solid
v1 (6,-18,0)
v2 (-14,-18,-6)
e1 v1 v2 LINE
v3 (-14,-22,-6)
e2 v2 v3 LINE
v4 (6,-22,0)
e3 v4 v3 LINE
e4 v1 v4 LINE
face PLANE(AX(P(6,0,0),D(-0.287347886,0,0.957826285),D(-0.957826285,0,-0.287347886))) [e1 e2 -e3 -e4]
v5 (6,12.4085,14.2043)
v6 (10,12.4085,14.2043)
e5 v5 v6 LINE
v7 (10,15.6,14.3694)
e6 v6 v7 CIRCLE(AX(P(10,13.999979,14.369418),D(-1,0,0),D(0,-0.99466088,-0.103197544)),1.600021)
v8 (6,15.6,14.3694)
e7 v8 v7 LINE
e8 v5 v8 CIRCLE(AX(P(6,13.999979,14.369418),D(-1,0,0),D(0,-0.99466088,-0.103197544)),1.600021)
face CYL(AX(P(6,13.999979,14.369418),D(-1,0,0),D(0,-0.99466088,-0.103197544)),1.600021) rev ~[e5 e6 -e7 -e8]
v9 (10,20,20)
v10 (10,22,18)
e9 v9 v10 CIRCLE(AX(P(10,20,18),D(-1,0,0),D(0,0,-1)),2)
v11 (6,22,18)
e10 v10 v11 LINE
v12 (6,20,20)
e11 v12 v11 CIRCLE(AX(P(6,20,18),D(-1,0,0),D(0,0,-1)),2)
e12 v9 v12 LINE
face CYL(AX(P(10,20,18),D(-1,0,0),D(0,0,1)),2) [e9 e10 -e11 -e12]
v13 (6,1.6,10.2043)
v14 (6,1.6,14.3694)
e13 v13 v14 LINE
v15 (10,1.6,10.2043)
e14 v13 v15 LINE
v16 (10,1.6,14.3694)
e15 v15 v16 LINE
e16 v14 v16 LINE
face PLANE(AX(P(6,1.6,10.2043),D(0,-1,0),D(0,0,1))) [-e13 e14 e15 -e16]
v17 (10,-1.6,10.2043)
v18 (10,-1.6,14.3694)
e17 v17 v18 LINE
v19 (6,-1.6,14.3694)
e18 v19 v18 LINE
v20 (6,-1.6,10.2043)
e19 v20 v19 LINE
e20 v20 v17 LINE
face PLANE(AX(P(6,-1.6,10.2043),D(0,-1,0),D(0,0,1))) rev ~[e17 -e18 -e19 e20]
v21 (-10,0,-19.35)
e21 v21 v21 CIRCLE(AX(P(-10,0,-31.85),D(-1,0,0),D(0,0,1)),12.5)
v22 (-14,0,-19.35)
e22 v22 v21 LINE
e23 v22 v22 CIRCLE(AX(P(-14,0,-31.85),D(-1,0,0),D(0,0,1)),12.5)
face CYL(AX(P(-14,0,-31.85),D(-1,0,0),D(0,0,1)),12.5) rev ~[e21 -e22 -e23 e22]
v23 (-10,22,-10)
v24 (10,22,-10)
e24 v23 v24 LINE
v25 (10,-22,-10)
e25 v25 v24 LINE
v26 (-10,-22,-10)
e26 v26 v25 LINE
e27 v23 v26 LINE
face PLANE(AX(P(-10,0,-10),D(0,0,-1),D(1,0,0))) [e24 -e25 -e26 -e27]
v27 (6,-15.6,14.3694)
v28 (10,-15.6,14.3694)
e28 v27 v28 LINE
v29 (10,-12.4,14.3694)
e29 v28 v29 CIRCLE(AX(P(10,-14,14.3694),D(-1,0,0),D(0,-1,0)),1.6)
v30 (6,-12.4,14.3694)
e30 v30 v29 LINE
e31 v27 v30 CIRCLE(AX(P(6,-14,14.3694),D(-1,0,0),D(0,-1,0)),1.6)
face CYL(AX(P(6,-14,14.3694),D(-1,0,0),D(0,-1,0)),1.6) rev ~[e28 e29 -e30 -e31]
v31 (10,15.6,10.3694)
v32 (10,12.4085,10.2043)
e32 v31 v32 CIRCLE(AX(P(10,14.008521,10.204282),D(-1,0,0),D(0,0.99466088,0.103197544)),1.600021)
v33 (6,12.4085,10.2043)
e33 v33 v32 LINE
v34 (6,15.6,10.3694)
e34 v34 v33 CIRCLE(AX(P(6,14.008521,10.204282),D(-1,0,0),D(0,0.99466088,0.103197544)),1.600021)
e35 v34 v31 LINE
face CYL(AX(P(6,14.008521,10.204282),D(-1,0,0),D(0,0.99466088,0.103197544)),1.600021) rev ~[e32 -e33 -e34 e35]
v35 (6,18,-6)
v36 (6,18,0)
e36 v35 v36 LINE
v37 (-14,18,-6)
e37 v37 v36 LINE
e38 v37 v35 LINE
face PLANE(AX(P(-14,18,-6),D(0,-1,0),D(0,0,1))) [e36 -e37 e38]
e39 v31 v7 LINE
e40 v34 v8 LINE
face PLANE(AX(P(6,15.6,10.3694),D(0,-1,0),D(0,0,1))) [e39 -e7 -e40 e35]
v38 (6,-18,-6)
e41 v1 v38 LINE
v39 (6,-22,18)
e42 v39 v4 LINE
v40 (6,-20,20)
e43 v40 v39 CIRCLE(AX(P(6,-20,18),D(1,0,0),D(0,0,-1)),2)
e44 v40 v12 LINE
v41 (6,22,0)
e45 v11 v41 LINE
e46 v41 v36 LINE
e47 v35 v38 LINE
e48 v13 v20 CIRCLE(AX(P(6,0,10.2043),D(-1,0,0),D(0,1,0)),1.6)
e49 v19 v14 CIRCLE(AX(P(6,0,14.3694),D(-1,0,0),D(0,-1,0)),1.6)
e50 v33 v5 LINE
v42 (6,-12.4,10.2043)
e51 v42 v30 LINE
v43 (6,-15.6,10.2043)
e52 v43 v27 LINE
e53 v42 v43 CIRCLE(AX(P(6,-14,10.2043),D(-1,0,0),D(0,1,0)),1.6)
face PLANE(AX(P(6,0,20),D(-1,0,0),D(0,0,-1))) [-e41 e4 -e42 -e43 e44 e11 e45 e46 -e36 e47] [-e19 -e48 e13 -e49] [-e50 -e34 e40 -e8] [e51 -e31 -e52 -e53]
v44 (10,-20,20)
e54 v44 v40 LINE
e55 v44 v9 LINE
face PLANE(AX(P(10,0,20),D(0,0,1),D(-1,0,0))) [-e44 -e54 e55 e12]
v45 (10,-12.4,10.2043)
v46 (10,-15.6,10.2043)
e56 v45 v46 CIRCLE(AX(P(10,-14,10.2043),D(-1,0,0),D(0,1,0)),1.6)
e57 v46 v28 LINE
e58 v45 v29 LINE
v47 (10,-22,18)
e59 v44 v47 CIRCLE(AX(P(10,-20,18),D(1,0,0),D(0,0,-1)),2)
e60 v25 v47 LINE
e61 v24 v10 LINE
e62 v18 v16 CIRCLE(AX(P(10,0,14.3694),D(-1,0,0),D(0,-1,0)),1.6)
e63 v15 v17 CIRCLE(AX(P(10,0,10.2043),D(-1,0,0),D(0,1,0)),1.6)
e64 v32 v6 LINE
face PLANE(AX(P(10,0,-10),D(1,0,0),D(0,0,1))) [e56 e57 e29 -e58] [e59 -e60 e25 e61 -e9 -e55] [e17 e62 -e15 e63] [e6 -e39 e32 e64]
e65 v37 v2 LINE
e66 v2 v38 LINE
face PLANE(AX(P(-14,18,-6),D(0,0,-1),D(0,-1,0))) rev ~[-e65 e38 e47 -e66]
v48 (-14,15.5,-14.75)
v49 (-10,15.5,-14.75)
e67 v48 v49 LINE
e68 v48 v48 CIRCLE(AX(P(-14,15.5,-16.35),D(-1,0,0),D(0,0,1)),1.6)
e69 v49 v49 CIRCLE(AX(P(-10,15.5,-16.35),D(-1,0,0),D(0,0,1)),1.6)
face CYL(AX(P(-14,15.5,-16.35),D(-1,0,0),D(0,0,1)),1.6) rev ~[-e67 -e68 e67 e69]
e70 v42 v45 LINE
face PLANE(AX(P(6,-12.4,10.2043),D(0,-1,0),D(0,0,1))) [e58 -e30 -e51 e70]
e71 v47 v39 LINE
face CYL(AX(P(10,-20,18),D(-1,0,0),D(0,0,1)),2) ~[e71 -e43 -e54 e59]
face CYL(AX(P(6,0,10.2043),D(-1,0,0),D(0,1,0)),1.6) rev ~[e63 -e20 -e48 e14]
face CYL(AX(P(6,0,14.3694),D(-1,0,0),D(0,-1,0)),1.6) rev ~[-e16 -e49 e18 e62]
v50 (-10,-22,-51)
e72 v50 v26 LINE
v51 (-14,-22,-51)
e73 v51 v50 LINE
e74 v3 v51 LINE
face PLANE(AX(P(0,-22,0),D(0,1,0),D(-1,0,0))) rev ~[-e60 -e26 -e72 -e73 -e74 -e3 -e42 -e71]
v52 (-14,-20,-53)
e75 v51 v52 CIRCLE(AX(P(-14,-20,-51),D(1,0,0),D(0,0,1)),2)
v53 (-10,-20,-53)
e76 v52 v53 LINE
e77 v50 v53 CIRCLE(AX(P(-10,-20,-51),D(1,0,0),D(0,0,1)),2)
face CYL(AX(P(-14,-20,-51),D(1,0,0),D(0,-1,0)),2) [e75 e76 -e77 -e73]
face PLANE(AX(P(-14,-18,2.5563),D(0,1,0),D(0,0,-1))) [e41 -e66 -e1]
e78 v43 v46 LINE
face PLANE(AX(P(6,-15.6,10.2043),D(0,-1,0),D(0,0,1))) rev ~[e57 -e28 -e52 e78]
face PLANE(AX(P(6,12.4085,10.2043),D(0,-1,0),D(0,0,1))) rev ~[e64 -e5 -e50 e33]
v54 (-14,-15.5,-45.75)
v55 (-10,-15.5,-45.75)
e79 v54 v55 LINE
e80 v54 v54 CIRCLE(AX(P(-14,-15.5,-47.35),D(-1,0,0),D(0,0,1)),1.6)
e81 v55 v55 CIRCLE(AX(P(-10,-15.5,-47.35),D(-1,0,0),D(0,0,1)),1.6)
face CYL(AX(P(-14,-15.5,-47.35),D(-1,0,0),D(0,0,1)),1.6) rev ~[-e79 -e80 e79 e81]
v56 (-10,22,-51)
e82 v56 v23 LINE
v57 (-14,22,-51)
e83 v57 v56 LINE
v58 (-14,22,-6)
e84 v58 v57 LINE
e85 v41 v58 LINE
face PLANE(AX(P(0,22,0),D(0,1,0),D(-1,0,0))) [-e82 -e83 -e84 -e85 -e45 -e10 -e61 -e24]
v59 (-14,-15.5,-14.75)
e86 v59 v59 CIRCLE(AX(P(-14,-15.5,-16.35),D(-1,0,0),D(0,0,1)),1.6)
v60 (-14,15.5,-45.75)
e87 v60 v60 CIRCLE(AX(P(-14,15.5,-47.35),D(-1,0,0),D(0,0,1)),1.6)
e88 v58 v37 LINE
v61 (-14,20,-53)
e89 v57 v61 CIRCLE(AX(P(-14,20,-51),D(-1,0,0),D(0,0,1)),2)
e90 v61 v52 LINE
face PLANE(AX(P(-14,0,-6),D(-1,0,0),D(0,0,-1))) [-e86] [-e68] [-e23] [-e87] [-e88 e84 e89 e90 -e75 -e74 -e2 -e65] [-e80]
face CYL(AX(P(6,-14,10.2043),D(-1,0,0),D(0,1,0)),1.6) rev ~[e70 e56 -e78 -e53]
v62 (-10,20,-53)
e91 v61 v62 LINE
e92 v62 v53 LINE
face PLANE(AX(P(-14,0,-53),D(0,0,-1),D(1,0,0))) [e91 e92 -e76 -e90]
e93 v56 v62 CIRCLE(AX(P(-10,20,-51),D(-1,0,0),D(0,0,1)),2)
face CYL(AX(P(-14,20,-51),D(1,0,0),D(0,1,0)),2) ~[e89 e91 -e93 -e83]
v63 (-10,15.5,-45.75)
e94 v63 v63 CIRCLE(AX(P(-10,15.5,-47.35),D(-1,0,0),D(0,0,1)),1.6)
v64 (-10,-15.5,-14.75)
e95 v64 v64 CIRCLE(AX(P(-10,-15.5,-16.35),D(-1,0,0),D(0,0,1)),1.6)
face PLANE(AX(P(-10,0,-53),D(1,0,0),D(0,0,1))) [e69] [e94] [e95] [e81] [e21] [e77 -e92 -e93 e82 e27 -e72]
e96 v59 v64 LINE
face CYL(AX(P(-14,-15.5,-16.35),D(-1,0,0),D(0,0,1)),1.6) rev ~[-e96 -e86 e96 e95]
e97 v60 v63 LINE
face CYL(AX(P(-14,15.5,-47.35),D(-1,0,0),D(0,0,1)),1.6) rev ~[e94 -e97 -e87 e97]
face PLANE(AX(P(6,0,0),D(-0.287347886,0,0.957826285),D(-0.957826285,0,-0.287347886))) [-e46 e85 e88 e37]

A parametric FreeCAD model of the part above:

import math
import FreeCAD as App
import Part
import Sketcher
Q = App.Units.Quantity


def edges_at(feature, points):
    """Names of the edges that pass closest to the given points."""
    edges = feature.Shape.Edges
    near = lambda p: min(range(len(edges)), key=lambda i: edges[i].distToShape(Part.Vertex(*p))[0])
    return sorted({f"Edge{near(p) + 1}" for p in points})

doc = App.newDocument("Part")
body = doc.addObject("PartDesign::Body", "Body")

# Sketch on XZ plane
sketch1 = doc.addObject("Sketcher::SketchObject", "Sketch")
body.addObject(sketch1)
sketch1.AttachmentSupport = (doc.XZ_Plane, [""])
sketch1.MapMode = "FlatFace"
sketch1.addGeometry(Part.LineSegment(App.Vector(6, 0, 0), App.Vector(6, 20, 0)), False)
sketch1.addGeometry(Part.LineSegment(App.Vector(6, 20, 0), App.Vector(10, 20, 0)), False)
sketch1.addGeometry(Part.LineSegment(App.Vector(10, 20, 0), App.Vector(10, -10, 0)), False)
sketch1.addGeometry(Part.LineSegment(App.Vector(10, -10, 0), App.Vector(-10, -10, 0)), False)
sketch1.addGeometry(Part.LineSegment(App.Vector(-10, -10, 0), App.Vector(-10, -53, 0)), False)
sketch1.addGeometry(Part.LineSegment(App.Vector(-10, -53, 0), App.Vector(-14, -53, 0)), False)
sketch1.addGeometry(Part.LineSegment(App.Vector(-14, -53, 0), App.Vector(-14, -6, 0)), False)
sketch1.addGeometry(Part.LineSegment(App.Vector(-14, -6, 0), App.Vector(6, 0, 0)), False)
sketch1.addConstraint(Sketcher.Constraint("Coincident", 0, 2, 1, 1))
sketch1.addConstraint(Sketcher.Constraint("Coincident", 1, 2, 2, 1))
sketch1.addConstraint(Sketcher.Constraint("Coincident", 2, 2, 3, 1))
sketch1.addConstraint(Sketcher.Constraint("Coincident", 3, 2, 4, 1))
sketch1.addConstraint(Sketcher.Constraint("Coincident", 4, 2, 5, 1))
sketch1.addConstraint(Sketcher.Constraint("Coincident", 5, 2, 6, 1))
sketch1.addConstraint(Sketcher.Constraint("Coincident", 6, 2, 7, 1))
sketch1.addConstraint(Sketcher.Constraint("Coincident", 7, 2, 0, 1))
sketch1.addConstraint(Sketcher.Constraint("Vertical", 0))
sketch1.addConstraint(Sketcher.Constraint("Horizontal", 1))
sketch1.addConstraint(Sketcher.Constraint("Vertical", 2))
sketch1.addConstraint(Sketcher.Constraint("Horizontal", 3))
sketch1.addConstraint(Sketcher.Constraint("Vertical", 4))
sketch1.addConstraint(Sketcher.Constraint("Horizontal", 5))
sketch1.addConstraint(Sketcher.Constraint("Vertical", 6))
sketch1.addConstraint(Sketcher.Constraint("PointOnObject", 7, 2, -1))
sketch1.addConstraint(Sketcher.Constraint("Equal", 1, 5))
sketch1.addConstraint(Sketcher.Constraint("Equal", 3, 0))
sketch1.addConstraint(Sketcher.Constraint("DistanceX", 1, 1, 1, 2, Q("4 mm")))
sketch1.addConstraint(Sketcher.Constraint("DistanceX", 3, 2, 3, 1, Q("20 mm")))
sketch1.addConstraint(Sketcher.Constraint("DistanceY", 2, 2, 2, 1, Q("30 mm")))
sketch1.addConstraint(Sketcher.Constraint("DistanceY", 4, 2, 4, 1, Q("43 mm")))
sketch1.addConstraint(Sketcher.Constraint("DistanceY", 3, 2, 6, 2, Q("4 mm")))
sketch1.addConstraint(Sketcher.Constraint("DistanceX", -1, 1, 0, 2, Q("6 mm")))
pad1 = doc.addObject("PartDesign::Pad", "Pad")
body.addObject(pad1)
pad1.Profile = sketch1
pad1.Length = 44
pad1.Midplane = True

# Sketch on YZ plane
sketch2 = doc.addObject("Sketcher::SketchObject", "Sketch001")
body.addObject(sketch2)
sketch2.AttachmentSupport = (doc.YZ_Plane, [""])
sketch2.MapMode = "FlatFace"
sketch2.AttachmentOffset = App.Placement(App.Vector(0, 0, -14), App.Rotation())
sketch2.addGeometry(Part.Circle(App.Vector(0, -31.9, 0), App.Vector(0, 0, 1), 12.5), False)
sketch2.addGeometry(Part.Circle(App.Vector(15.5, -47.4, 0), App.Vector(0, 0, 1), 1.6), False)
sketch2.addGeometry(Part.Circle(App.Vector(-15.5, -47.4, 0), App.Vector(0, 0, 1), 1.6), False)
sketch2.addGeometry(Part.Circle(App.Vector(15.5, -16.4, 0), App.Vector(0, 0, 1), 1.6), False)
sketch2.addGeometry(Part.Circle(App.Vector(-15.5, -16.4, 0), App.Vector(0, 0, 1), 1.6), False)
sketch2.addConstraint(Sketcher.Constraint("Equal", 1, 2))
sketch2.addConstraint(Sketcher.Constraint("Equal", 2, 3))
sketch2.addConstraint(Sketcher.Constraint("Equal", 3, 4))
sketch2.addConstraint(Sketcher.Constraint("Symmetric", 1, 3, 2, 3, -2))
sketch2.addConstraint(Sketcher.Constraint("Symmetric", 3, 3, 4, 3, -2))
sketch2.addConstraint(Sketcher.Constraint("PointOnObject", 0, 3, -2))
sketch2.addConstraint(Sketcher.Constraint("Vertical", 1, 3, 3, 3))
sketch2.addConstraint(Sketcher.Constraint("Diameter", 0, Q("25 mm")))
sketch2.addConstraint(Sketcher.Constraint("Diameter", 1, Q("3.2 mm")))
sketch2.addConstraint(Sketcher.Constraint("DistanceX", 2, 3, 1, 3, Q("31 mm")))
sketch2.addConstraint(Sketcher.Constraint("DistanceY", 1, 3, 3, 3, Q("31 mm")))
sketch2.addConstraint(Sketcher.Constraint("DistanceY", 1, 3, 0, 3, Q("15.5 mm")))
sketch2.addConstraint(Sketcher.Constraint("DistanceY", 0, 3, -1, 1, Q("31.85 mm")))
pocket1 = doc.addObject("PartDesign::Pocket", "Pocket")
body.addObject(pocket1)
pocket1.Profile = sketch2
pocket1.Type = "UpToFirst"
pocket1.Reversed = True

# Sketch on YZ plane
sketch3 = doc.addObject("Sketcher::SketchObject", "Sketch002")
body.addObject(sketch3)
sketch3.AttachmentSupport = (doc.YZ_Plane, [""])
sketch3.MapMode = "FlatFace"
sketch3.AttachmentOffset = App.Placement(App.Vector(0, 0, 6), App.Rotation())
sketch3.addGeometry(Part.LineSegment(App.Vector(12.4, 10.2, 0), App.Vector(12.4, 14.2, 0)), False)
sketch3.addGeometry(Part.ArcOfCircle(Part.Circle(App.Vector(14, 14.4, 0), App.Vector(0, 0, 1), 1.6), math.radians(0), math.radians(186)), False)
sketch3.addGeometry(Part.LineSegment(App.Vector(15.6, 14.4, 0), App.Vector(15.6, 10.4, 0)), False)
sketch3.addGeometry(Part.ArcOfCircle(Part.Circle(App.Vector(14, 10.2, 0), App.Vector(0, 0, 1), 1.6), math.radians(180), math.radians(366)), False)
sketch3.addGeometry(Part.LineSegment(App.Vector(-1.6, 10.2, 0), App.Vector(-1.6, 14.4, 0)), False)
sketch3.addGeometry(Part.ArcOfCircle(Part.Circle(App.Vector(0, 14.4, 0), App.Vector(0, 0, 1), 1.6), math.radians(0), math.radians(180)), False)
sketch3.addGeometry(Part.LineSegment(App.Vector(1.6, 14.4, 0), App.Vector(1.6, 10.2, 0)), False)
sketch3.addGeometry(Part.ArcOfCircle(Part.Circle(App.Vector(0, 10.2, 0), App.Vector(0, 0, 1), 1.6), math.radians(180), math.radians(360)), False)
sketch3.addGeometry(Part.LineSegment(App.Vector(-15.6, 10.2, 0), App.Vector(-15.6, 14.4, 0)), False)
sketch3.addGeometry(Part.ArcOfCircle(Part.Circle(App.Vector(-14, 14.4, 0), App.Vector(0, 0, 1), 1.6), math.radians(0), math.radians(180)), False)
sketch3.addGeometry(Part.LineSegment(App.Vector(-12.4, 14.4, 0), App.Vector(-12.4, 10.2, 0)), False)
sketch3.addGeometry(Part.ArcOfCircle(Part.Circle(App.Vector(-14, 10.2, 0), App.Vector(0, 0, 1), 1.6), math.radians(180), math.radians(360)), False)
sketch3.addConstraint(Sketcher.Constraint("Coincident", 0, 2, 1, 2))
sketch3.addConstraint(Sketcher.Constraint("Tangent", 1, 1, 2, 1))
sketch3.addConstraint(Sketcher.Constraint("Coincident", 2, 2, 3, 2))
sketch3.addConstraint(Sketcher.Constraint("Tangent", 3, 1, 0, 1))
sketch3.addConstraint(Sketcher.Constraint("Tangent", 4, 2, 5, 2))
sketch3.addConstraint(Sketcher.Constraint("Tangent", 5, 1, 6, 1))
sketch3.addConstraint(Sketcher.Constraint("Tangent", 6, 2, 7, 2))
sketch3.addConstraint(Sketcher.Constraint("Tangent", 7, 1, 4, 1))
sketch3.addConstraint(Sketcher.Constraint("Tangent", 8, 2, 9, 2))
sketch3.addConstraint(Sketcher.Constraint("Tangent", 9, 1, 10, 1))
sketch3.addConstraint(Sketcher.Constraint("Tangent", 10, 2, 11, 2))
sketch3.addConstraint(Sketcher.Constraint("Tangent", 11, 1, 8, 1))
sketch3.addConstraint(Sketcher.Constraint("Vertical", 0))
sketch3.addConstraint(Sketcher.Constraint("Vertical", 2))
sketch3.addConstraint(Sketcher.Constraint("Vertical", 4))
sketch3.addConstraint(Sketcher.Constraint("Vertical", 6))
sketch3.addConstraint(Sketcher.Constraint("Vertical", 8))
sketch3.addConstraint(Sketcher.Constraint("Vertical", 10))
sketch3.addConstraint(Sketcher.Constraint("Equal", 1, 3))
sketch3.addConstraint(Sketcher.Constraint("Equal", 3, 5))
sketch3.addConstraint(Sketcher.Constraint("Equal", 7, 9))
sketch3.addConstraint(Sketcher.Constraint("Symmetric", 1, 3, 9, 3, -2))
sketch3.addConstraint(Sketcher.Constraint("PointOnObject", 5, 3, -2))
sketch3.addConstraint(Sketcher.Constraint("Horizontal", 1, 3, 5, 3))
sketch3.addConstraint(Sketcher.Constraint("Horizontal", 3, 3, 7, 3))
sketch3.addConstraint(Sketcher.Constraint("Horizontal", 7, 3, 11, 3))
sketch3.addConstraint(Sketcher.Constraint("Radius", 1, Q("1.6 mm")))
sketch3.addConstraint(Sketcher.Constraint("DistanceY", 0, 1, 0, 2, Q("4 mm")))
sketch3.addConstraint(Sketcher.Constraint("DistanceX", -1, 1, 1, 3, Q("14 mm")))
sketch3.addConstraint(Sketcher.Constraint("DistanceY", 4, 1, 4, 2, Q("4.165 mm")))
sketch3.addConstraint(Sketcher.Constraint("DistanceY", -1, 1, 1, 3, Q("14.3694 mm")))
pocket2 = doc.addObject("PartDesign::Pocket", "Pocket001")
body.addObject(pocket2)
pocket2.Profile = sketch3
pocket2.Type = "UpToFirst"
pocket2.Reversed = True

# Sketch on YZ plane
sketch4 = doc.addObject("Sketcher::SketchObject", "Sketch003")
body.addObject(sketch4)
sketch4.AttachmentSupport = (doc.YZ_Plane, [""])
sketch4.MapMode = "FlatFace"
sketch4.AttachmentOffset = App.Placement(App.Vector(0, 0, -14), App.Rotation())
sketch4.addGeometry(Part.LineSegment(App.Vector(18, 3, 0), App.Vector(18, -6, 0)), False)
sketch4.addGeometry(Part.LineSegment(App.Vector(18, -6, 0), App.Vector(-18, -6, 0)), False)
sketch4.addGeometry(Part.LineSegment(App.Vector(-18, -6, 0), App.Vector(-18, 3, 0)), False)
sketch4.addGeometry(Part.LineSegment(App.Vector(-18, 3, 0), App.Vector(18, 3, 0)), False)
sketch4.addConstraint(Sketcher.Constraint("Coincident", 0, 2, 1, 1))
sketch4.addConstraint(Sketcher.Constraint("Coincident", 1, 2, 2, 1))
sketch4.addConstraint(Sketcher.Constraint("Coincident", 2, 2, 3, 1))
sketch4.addConstraint(Sketcher.Constraint("Coincident", 3, 2, 0, 1))
sketch4.addConstraint(Sketcher.Constraint("Vertical", 0))
sketch4.addConstraint(Sketcher.Constraint("Horizontal", 1))
sketch4.addConstraint(Sketcher.Constraint("Vertical", 2))
sketch4.addConstraint(Sketcher.Constraint("Horizontal", 3))
sketch4.addConstraint(Sketcher.Constraint("DistanceX", 1, 2, 1, 1, Q("36 mm")))
sketch4.addConstraint(Sketcher.Constraint("DistanceX", -1, 1, 0, 2, Q("18 mm")))
sketch4.addConstraint(Sketcher.Constraint("DistanceY", 0, 2, -1, 1, Q("6 mm")))
sketch4.addConstraint(Sketcher.Constraint("DistanceY", 0, 2, 0, 1, Q("8.5563 mm")))
pocket3 = doc.addObject("PartDesign::Pocket", "Pocket002")
body.addObject(pocket3)
pocket3.Profile = sketch4
pocket3.Length = 20
pocket3.Reversed = True
doc.recompute()

fillet = doc.addObject("PartDesign::Fillet", "Fillet")
body.addObject(fillet)
fillet.Base = (pocket3, edges_at(pocket3, [
    (-12, 22, -53),
    (-12, -22, -53),
    (8, -22, 20),
    (8, 22, 20),
]))
fillet.Radius = 2

doc.recompute()
